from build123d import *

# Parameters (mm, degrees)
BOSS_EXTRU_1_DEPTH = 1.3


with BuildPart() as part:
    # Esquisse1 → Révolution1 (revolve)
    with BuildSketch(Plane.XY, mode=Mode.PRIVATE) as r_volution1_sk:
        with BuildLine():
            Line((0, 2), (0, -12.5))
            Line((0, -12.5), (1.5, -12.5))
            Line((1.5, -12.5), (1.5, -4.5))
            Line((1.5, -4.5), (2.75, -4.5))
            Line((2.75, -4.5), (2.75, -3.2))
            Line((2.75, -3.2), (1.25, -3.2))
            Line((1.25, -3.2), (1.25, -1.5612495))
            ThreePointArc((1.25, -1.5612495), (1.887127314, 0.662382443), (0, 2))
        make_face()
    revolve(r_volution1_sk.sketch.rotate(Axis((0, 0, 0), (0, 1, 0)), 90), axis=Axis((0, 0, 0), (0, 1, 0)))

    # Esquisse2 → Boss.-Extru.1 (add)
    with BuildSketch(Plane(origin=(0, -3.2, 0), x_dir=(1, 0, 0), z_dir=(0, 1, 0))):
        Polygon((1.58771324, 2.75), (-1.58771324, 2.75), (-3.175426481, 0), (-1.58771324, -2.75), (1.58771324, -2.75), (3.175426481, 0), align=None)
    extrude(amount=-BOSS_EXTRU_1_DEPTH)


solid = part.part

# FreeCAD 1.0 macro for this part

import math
import FreeCAD as App
import Part
import Sketcher
Q = App.Units.Quantity

doc = App.newDocument("Part")
body = doc.addObject("PartDesign::Body", "Body")

# Sketch on XY plane
sketch1 = body.newObject("Sketcher::SketchObject", "Sketch")
sketch1.AttachmentSupport = (doc.getObject("XY_Plane"), [""])
sketch1.MapMode = "FlatFace"
sketch1.addGeometry(Part.LineSegment(App.Vector(0, 2, 0), App.Vector(0, -12.5, 0)), False)
sketch1.addGeometry(Part.LineSegment(App.Vector(0, -12.5, 0), App.Vector(1.5, -12.5, 0)), False)
sketch1.addGeometry(Part.LineSegment(App.Vector(1.5, -12.5, 0), App.Vector(1.5, -4.5, 0)), False)
sketch1.addGeometry(Part.LineSegment(App.Vector(1.5, -4.5, 0), App.Vector(2.75, -4.5, 0)), False)
sketch1.addGeometry(Part.LineSegment(App.Vector(2.75, -4.5, 0), App.Vector(2.75, -3.2, 0)), False)
sketch1.addGeometry(Part.LineSegment(App.Vector(2.75, -3.2, 0), App.Vector(1.25, -3.2, 0)), False)
sketch1.addGeometry(Part.LineSegment(App.Vector(1.25, -3.2, 0), App.Vector(1.25, -1.561249, 0)), False)
sketch1.addGeometry(Part.ArcOfCircle(Part.Circle(App.Vector(0, 0, 0), App.Vector(0, 0, 1), 2), math.radians(-51.317813), math.radians(90)), False)
sketch1.addConstraint(Sketcher.Constraint("Coincident", 0, 2, 1, 1))
sketch1.addConstraint(Sketcher.Constraint("Coincident", 1, 2, 2, 1))
sketch1.addConstraint(Sketcher.Constraint("Coincident", 2, 2, 3, 1))
sketch1.addConstraint(Sketcher.Constraint("Coincident", 3, 2, 4, 1))
sketch1.addConstraint(Sketcher.Constraint("Coincident", 4, 2, 5, 1))
sketch1.addConstraint(Sketcher.Constraint("Coincident", 5, 2, 6, 1))
sketch1.addConstraint(Sketcher.Constraint("Coincident", 6, 2, 7, 1))
sketch1.addConstraint(Sketcher.Constraint("Coincident", 7, 2, 0, 1))
sketch1.addConstraint(Sketcher.Constraint("Vertical", 0))
sketch1.addConstraint(Sketcher.Constraint("Horizontal", 1))
sketch1.addConstraint(Sketcher.Constraint("Vertical", 2))
sketch1.addConstraint(Sketcher.Constraint("Horizontal", 3))
sketch1.addConstraint(Sketcher.Constraint("Vertical", 4))
sketch1.addConstraint(Sketcher.Constraint("Horizontal", 5))
sketch1.addConstraint(Sketcher.Constraint("Vertical", 6))
sketch1.addConstraint(Sketcher.Constraint("Coincident", 7, 3, -1, 1))
sketch1.addConstraint(Sketcher.Constraint("PointOnObject", 0, 2, -2))
sketch1.addConstraint(Sketcher.Constraint("Equal", 1, 5))
sketch1.addConstraint(Sketcher.Constraint("Radius", 7, Q("2 mm")))
sketch1.addConstraint(Sketcher.Constraint("DistanceY", 2, 1, 2, 2, Q("8 mm")))
sketch1.addConstraint(Sketcher.Constraint("DistanceX", 1, 1, 1, 2, Q("1.5 mm")))
sketch1.addConstraint(Sketcher.Constraint("DistanceY", 0, 2, 0, 1, Q("14.5 mm")))
sketch1.addConstraint(Sketcher.Constraint("DistanceY", 4, 1, 4, 2, Q("1.3 mm")))
sketch1.addConstraint(Sketcher.Constraint("DistanceX", 3, 1, 3, 2, Q("1.25 mm")))
revolution = body.newObject("PartDesign::Revolution", "Revolution")
revolution.Profile = sketch1
revolution.ReferenceAxis = (sketch1, ["V_Axis"])
revolution.Angle = 360

# Sketch on XZ plane
sketch2 = body.newObject("Sketcher::SketchObject", "Sketch001")
sketch2.AttachmentSupport = (doc.getObject("XZ_Plane"), [""])
sketch2.MapMode = "FlatFace"
sketch2.AttachmentOffset = App.Placement(App.Vector(0, 0, 3.2), App.Rotation())
sketch2.addGeometry(Part.LineSegment(App.Vector(1.587713, -2.75, 0), App.Vector(-1.587713, -2.75, 0)), False)
sketch2.addGeometry(Part.LineSegment(App.Vector(-1.587713, -2.75, 0), App.Vector(-3.175426, 0, 0)), False)
sketch2.addGeometry(Part.LineSegment(App.Vector(-3.175426, 0, 0), App.Vector(-1.587713, 2.75, 0)), False)
sketch2.addGeometry(Part.LineSegment(App.Vector(-1.587713, 2.75, 0), App.Vector(1.587713, 2.75, 0)), False)
sketch2.addGeometry(Part.LineSegment(App.Vector(1.587713, 2.75, 0), App.Vector(3.175426, 0, 0)), False)
sketch2.addGeometry(Part.LineSegment(App.Vector(3.175426, 0, 0), App.Vector(1.587713, -2.75, 0)), False)
sketch2.addConstraint(Sketcher.Constraint("Coincident", 0, 2, 1, 1))
sketch2.addConstraint(Sketcher.Constraint("Coincident", 1, 2, 2, 1))
sketch2.addConstraint(Sketcher.Constraint("Coincident", 2, 2, 3, 1))
sketch2.addConstraint(Sketcher.Constraint("Coincident", 3, 2, 4, 1))
sketch2.addConstraint(Sketcher.Constraint("Coincident", 4, 2, 5, 1))
sketch2.addConstraint(Sketcher.Constraint("Coincident", 5, 2, 0, 1))
sketch2.addConstraint(Sketcher.Constraint("Horizontal", 0))
sketch2.addConstraint(Sketcher.Constraint("Horizontal", 3))
sketch2.addConstraint(Sketcher.Constraint("Symmetric", 0, 2, 3, 2, -1, 1))
sketch2.addConstraint(Sketcher.Constraint("Symmetric", 1, 2, 4, 2, -1, 1))
sketch2.addConstraint(Sketcher.Constraint("PointOnObject", 1, 2, -1))
sketch2.addConstraint(Sketcher.Constraint("Parallel", 2, 5))
sketch2.addConstraint(Sketcher.Constraint("Vertical", 0, 2, 2, 2))
sketch2.addConstraint(Sketcher.Constraint("Angle", 1, Q("120 deg")))
sketch2.addConstraint(Sketcher.Constraint("DistanceY", 0, 2, 2, 2, Q("5.5 mm")))
sketch2.addConstraint(Sketcher.Constraint("DistanceX", 0, 2, 0, 1, Q("3.175426 mm")))
pad1 = body.newObject("PartDesign::Pad", "Pad")
pad1.Profile = sketch2
pad1.Length = 1.3

doc.recompute()
